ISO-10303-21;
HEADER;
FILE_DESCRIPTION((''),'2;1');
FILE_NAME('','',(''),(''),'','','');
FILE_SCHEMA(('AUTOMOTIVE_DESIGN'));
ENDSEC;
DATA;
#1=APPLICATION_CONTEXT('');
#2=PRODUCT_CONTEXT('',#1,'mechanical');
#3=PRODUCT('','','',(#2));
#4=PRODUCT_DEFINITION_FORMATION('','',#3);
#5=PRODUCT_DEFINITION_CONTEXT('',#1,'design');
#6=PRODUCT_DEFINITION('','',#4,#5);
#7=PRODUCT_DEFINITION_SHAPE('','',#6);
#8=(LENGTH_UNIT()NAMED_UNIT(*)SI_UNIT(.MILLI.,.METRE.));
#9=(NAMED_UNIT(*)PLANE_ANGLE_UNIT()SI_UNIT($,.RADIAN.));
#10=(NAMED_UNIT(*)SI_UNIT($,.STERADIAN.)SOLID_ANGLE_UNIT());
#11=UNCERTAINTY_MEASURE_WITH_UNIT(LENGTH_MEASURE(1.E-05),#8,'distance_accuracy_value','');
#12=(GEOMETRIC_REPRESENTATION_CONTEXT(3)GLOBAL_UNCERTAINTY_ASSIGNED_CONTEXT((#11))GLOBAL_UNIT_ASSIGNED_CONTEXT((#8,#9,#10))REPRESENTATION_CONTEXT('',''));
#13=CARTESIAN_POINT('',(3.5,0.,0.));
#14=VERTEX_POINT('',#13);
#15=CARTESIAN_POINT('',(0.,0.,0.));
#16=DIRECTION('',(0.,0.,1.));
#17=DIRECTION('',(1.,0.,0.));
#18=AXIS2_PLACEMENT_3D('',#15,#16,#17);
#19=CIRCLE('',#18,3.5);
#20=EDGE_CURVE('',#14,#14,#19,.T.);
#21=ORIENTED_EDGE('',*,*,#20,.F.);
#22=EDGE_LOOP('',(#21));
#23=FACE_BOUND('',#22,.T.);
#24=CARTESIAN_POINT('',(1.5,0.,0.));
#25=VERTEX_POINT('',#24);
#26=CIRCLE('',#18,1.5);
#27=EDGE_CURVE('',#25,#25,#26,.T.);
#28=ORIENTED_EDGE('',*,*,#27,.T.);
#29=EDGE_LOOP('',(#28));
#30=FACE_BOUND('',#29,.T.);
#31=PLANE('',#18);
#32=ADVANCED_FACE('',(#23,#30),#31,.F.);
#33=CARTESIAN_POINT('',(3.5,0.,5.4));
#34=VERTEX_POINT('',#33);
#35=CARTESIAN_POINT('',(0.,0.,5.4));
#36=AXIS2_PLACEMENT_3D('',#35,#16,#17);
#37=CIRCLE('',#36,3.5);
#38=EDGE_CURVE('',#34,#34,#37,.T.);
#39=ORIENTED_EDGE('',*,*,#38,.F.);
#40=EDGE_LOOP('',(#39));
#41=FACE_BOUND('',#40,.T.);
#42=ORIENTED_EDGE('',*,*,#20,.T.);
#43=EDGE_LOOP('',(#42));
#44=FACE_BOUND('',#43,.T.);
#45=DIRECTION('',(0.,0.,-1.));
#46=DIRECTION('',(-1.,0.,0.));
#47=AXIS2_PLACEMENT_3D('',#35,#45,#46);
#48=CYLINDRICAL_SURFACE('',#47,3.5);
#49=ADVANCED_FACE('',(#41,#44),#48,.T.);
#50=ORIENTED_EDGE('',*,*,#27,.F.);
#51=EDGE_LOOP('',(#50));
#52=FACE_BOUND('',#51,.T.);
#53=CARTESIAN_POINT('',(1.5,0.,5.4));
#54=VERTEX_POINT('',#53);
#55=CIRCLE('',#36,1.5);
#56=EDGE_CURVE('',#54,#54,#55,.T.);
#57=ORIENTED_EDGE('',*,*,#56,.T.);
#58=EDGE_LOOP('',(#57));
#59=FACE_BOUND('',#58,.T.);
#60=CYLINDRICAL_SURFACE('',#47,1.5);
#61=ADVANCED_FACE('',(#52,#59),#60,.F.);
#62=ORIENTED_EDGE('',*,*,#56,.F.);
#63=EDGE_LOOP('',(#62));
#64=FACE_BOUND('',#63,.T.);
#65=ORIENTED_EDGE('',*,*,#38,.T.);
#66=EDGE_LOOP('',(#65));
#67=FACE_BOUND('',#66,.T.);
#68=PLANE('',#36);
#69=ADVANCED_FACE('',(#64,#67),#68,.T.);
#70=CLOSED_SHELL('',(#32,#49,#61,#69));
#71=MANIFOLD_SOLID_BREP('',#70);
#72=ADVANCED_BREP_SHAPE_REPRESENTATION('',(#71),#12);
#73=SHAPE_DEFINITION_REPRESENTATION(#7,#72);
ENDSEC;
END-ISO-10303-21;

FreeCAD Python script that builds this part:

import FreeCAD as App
import Part
import Sketcher

doc = App.newDocument("Part")
params = doc.addObject("Spreadsheet::Sheet", "Params")
for row, (alias, value) in enumerate([
    ("sketch1_diameter", "7 mm"),
    ("sketch1_diameter2", "3 mm"),
    ("pad1_length", "5.4 mm"),
], start=1):
    params.set(f"A{row}", alias)
    params.set(f"B{row}", "=" + value)
    params.setAlias(f"B{row}", alias)

body = doc.addObject("PartDesign::Body", "Body")

sketch1 = body.newObject("Sketcher::SketchObject", "Sketch")
sketch1.AttachmentSupport = (doc.getObject("XY_Plane"), [""])
sketch1.MapMode = "FlatFace"
sketch1.addGeometry(Part.Circle(App.Vector(0, 0, 0), App.Vector(0, 0, 1), 3.5), False)
sketch1.addGeometry(Part.Circle(App.Vector(0, 0, 0), App.Vector(0, 0, 1), 1.5), False)
sketch1.addConstraint(Sketcher.Constraint("Coincident", 0, 3, -1, 1))
sketch1.addConstraint(Sketcher.Constraint("Coincident", 1, 3, -1, 1))
sketch1.addConstraint(Sketcher.Constraint("Diameter", 0, 7.0))
sketch1.addConstraint(Sketcher.Constraint("Diameter", 1, 3.0))
sketch1.setExpression("Constraints[2]", "Params.sketch1_diameter")
sketch1.setExpression("Constraints[3]", "Params.sketch1_diameter2")
pad1 = body.newObject("PartDesign::Pad", "Pad")
pad1.Profile = sketch1
pad1.setExpression("Length", "Params.pad1_length")

doc.recompute()
